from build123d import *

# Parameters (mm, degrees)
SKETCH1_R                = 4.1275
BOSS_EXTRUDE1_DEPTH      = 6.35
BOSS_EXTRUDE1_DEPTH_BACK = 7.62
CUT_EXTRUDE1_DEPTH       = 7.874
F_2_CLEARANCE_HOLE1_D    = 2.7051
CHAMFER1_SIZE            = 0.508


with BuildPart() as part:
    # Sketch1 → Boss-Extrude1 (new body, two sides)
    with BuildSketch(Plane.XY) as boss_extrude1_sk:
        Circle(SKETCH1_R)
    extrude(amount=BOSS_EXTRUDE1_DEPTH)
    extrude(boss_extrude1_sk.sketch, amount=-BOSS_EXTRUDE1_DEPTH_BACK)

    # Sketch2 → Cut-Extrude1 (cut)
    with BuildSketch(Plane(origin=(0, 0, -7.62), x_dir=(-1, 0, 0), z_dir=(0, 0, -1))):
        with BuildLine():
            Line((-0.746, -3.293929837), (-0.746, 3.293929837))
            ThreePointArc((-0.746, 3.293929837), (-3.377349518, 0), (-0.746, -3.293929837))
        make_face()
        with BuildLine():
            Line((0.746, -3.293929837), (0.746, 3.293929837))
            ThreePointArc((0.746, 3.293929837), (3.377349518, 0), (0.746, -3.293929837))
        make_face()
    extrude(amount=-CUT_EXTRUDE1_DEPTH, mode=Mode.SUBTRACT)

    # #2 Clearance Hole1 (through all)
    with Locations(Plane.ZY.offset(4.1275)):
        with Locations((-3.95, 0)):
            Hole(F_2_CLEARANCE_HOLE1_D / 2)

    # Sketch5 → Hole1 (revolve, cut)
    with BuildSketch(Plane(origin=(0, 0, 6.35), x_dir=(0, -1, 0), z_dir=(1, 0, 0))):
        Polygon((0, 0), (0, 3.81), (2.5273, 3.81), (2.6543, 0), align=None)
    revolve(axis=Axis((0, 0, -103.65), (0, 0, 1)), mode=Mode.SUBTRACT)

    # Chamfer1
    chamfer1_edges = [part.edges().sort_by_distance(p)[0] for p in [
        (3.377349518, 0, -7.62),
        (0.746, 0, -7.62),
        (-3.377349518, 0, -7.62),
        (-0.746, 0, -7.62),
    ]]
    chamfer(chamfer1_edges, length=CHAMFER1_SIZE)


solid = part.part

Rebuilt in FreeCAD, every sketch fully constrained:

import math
import FreeCAD as App
import Part
import Sketcher
from FreeCAD import Vector
Q = App.Units.Quantity


def edges_at(feature, points):
    """Names of the edges that pass closest to the given points."""
    edges = feature.Shape.Edges
    near = lambda p: min(range(len(edges)), key=lambda i: edges[i].distToShape(Part.Vertex(*p))[0])
    return sorted({f"Edge{near(p) + 1}" for p in points})

doc = App.newDocument("Part")
body = doc.addObject("PartDesign::Body", "Body")

# Sketch on XY plane
sketch1 = body.newObject("Sketcher::SketchObject", "Sketch")
sketch1.AttachmentSupport = (doc.getObject("XY_Plane"), [""])
sketch1.MapMode = "FlatFace"
sketch1.addGeometry(Part.Circle(Vector(0, 0, 0), Vector(0, 0, 1), 4.1275), False)
sketch1.addConstraint(Sketcher.Constraint("Coincident", 0, 3, -1, 1))
sketch1.addConstraint(Sketcher.Constraint("Diameter", 0, Q("0.325 in")))
pad1 = body.newObject("PartDesign::Pad", "Pad")
pad1.Profile = sketch1
pad1.Type = "TwoLengths"
pad1.Length = Q("0.25 in")
pad1.Length2 = Q("0.3 in")

# Sketch on XY plane
sketch2 = body.newObject("Sketcher::SketchObject", "Sketch001")
sketch2.AttachmentSupport = (doc.getObject("XY_Plane"), [""])
sketch2.MapMode = "FlatFace"
sketch2.AttachmentOffset = App.Placement(Vector(0, 0, -0.3 * 25.4), App.Rotation())
sketch2.addGeometry(Part.LineSegment(Vector(0.746, -3.29393, 0), Vector(0.746, 3.29393, 0)), False)
sketch2.addGeometry(Part.ArcOfCircle(Part.Circle(Vector(0, 0, 0), Vector(0, 0, 1), 3.37735), math.radians(-77.239083), math.radians(77.239083)), False)
sketch2.addGeometry(Part.LineSegment(Vector(-0.746, 3.29393, 0), Vector(-0.746, -3.29393, 0)), False)
sketch2.addGeometry(Part.ArcOfCircle(Part.Circle(Vector(0, 0, 0), Vector(0, 0, 1), 3.37735), math.radians(102.760917), math.radians(257.239083)), False)
sketch2.addConstraint(Sketcher.Constraint("Coincident", 0, 1, 1, 1))
sketch2.addConstraint(Sketcher.Constraint("Coincident", 1, 2, 0, 2))
sketch2.addConstraint(Sketcher.Constraint("Coincident", 2, 1, 3, 1))
sketch2.addConstraint(Sketcher.Constraint("Coincident", 3, 2, 2, 2))
sketch2.addConstraint(Sketcher.Constraint("Vertical", 0))
sketch2.addConstraint(Sketcher.Constraint("Vertical", 2))
sketch2.addConstraint(Sketcher.Constraint("Coincident", 1, 3, -1, 1))
sketch2.addConstraint(Sketcher.Constraint("Coincident", 3, 3, -1, 1))
sketch2.addConstraint(Sketcher.Constraint("Equal", 1, 3))
sketch2.addConstraint(Sketcher.Constraint("Horizontal", 1, 2, 2, 1))
sketch2.addConstraint(Sketcher.Constraint("Radius", 1, Q("3.37735 mm")))
sketch2.addConstraint(Sketcher.Constraint("DistanceY", 0, 1, 0, 2, Q("6.58786 mm")))
pocket1 = body.newObject("PartDesign::Pocket", "Pocket")
pocket1.Profile = sketch2
pocket1.Length = Q("0.31 in")
pocket1.Reversed = True

# Sketch on YZ plane
sketch3 = body.newObject("Sketcher::SketchObject", "Sketch002")
sketch3.AttachmentSupport = (doc.getObject("YZ_Plane"), [""])
sketch3.MapMode = "FlatFace"
sketch3.AttachmentOffset = App.Placement(Vector(0, 0, -0.1625 * 25.4), App.Rotation())
sketch3.addGeometry(Part.Circle(Vector(0, -3.95, 0), Vector(0, 0, 1), 1.35255), False)
sketch3.addConstraint(Sketcher.Constraint("PointOnObject", 0, 3, -2))
sketch3.addConstraint(Sketcher.Constraint("Diameter", 0, Q("0.1065 in")))
sketch3.addConstraint(Sketcher.Constraint("DistanceY", 0, 3, -1, 1, Q("3.95 mm")))
doc.recompute()
hole = body.newObject("PartDesign::Hole", "Hole")
hole.Profile = sketch3
hole.ThreadType = "None"
hole.Diameter = Q("0.1065 in")
hole.DepthType = "ThroughAll"
hole.Reversed = True

# Sketch on YZ plane
sketch4 = body.newObject("Sketcher::SketchObject", "Sketch003")
sketch4.AttachmentSupport = (doc.getObject("YZ_Plane"), [""])
sketch4.MapMode = "FlatFace"
sketch4.addGeometry(Part.LineSegment(Vector(0, 2.54, 0), Vector(0, 6.35, 0)), False)
sketch4.addGeometry(Part.LineSegment(Vector(0, 6.35, 0), Vector(-2.6543, 6.35, 0)), False)
sketch4.addGeometry(Part.LineSegment(Vector(-2.6543, 6.35, 0), Vector(-2.5273, 2.54, 0)), False)
sketch4.addGeometry(Part.LineSegment(Vector(-2.5273, 2.54, 0), Vector(0, 2.54, 0)), False)
sketch4.addConstraint(Sketcher.Constraint("Coincident", 0, 2, 1, 1))
sketch4.addConstraint(Sketcher.Constraint("Coincident", 1, 2, 2, 1))
sketch4.addConstraint(Sketcher.Constraint("Coincident", 2, 2, 3, 1))
sketch4.addConstraint(Sketcher.Constraint("Coincident", 3, 2, 0, 1))
sketch4.addConstraint(Sketcher.Constraint("Vertical", 0))
sketch4.addConstraint(Sketcher.Constraint("Horizontal", 1))
sketch4.addConstraint(Sketcher.Constraint("Horizontal", 3))
sketch4.addConstraint(Sketcher.Constraint("PointOnObject", 0, 2, -2))
sketch4.addConstraint(Sketcher.Constraint("DistanceY", 0, 1, 0, 2, Q("0.15 in")))
sketch4.addConstraint(Sketcher.Constraint("DistanceY", -1, 1, 2, 2, Q("0.1 in")))
sketch4.addConstraint(Sketcher.Constraint("DistanceX", 1, 2, 1, 1, Q("0.1045 in")))
sketch4.addConstraint(Sketcher.Constraint("DistanceX", 3, 1, 3, 2, Q("0.0995 in")))
groove = body.newObject("PartDesign::Groove", "Groove")
groove.Profile = sketch4
groove.ReferenceAxis = (sketch4, ["V_Axis"])
groove.Angle = 360
doc.recompute()

chamfer = body.newObject("PartDesign::Chamfer", "Chamfer")
chamfer.Base = (groove, edges_at(groove, [
    (3.377, 0, -7.62),
    (0.746, 0, -7.62),
    (-3.377, 0, -7.62),
    (-0.746, 0, -7.62),
]))
chamfer.Size = Q("0.02 in")

doc.recompute()
